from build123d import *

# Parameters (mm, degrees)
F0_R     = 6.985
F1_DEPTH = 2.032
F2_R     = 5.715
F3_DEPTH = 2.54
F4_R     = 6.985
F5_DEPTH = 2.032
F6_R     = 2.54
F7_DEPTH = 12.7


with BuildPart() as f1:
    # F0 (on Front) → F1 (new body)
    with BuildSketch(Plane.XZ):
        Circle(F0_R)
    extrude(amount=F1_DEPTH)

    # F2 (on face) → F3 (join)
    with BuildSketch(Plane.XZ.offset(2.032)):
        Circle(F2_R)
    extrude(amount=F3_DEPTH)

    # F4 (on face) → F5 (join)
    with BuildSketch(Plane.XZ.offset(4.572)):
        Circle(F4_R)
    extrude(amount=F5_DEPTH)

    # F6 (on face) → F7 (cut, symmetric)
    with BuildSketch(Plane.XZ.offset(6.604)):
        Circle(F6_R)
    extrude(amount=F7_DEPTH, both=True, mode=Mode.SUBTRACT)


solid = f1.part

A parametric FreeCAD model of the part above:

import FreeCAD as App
import Part
import Sketcher
Q = App.Units.Quantity

doc = App.newDocument("Part")
body = doc.addObject("PartDesign::Body", "Body")

sketch1 = body.newObject("Sketcher::SketchObject", "Sketch")
sketch1.AttachmentSupport = (doc.getObject("XZ_Plane"), [""])
sketch1.MapMode = "FlatFace"
sketch1.addGeometry(Part.Circle(App.Vector(0, 0, 0), App.Vector(0, 0, 1), 7), False)
sketch1.addConstraint([
    Sketcher.Constraint("Coincident", 0, 3, -1, 1),
    Sketcher.Constraint("Diameter", 0, Q("0.55 in")),
])
pad1 = body.newObject("PartDesign::Pad", "Pad")
pad1.Profile = sketch1
pad1.Length = Q("0.08 in")

sketch2 = body.newObject("Sketcher::SketchObject", "Sketch001")
sketch2.AttachmentSupport = (doc.getObject("XZ_Plane"), [""])
sketch2.MapMode = "FlatFace"
sketch2.AttachmentOffset = App.Placement(App.Vector(0, 0, 0.08 * 25.4), App.Rotation())
sketch2.addGeometry(Part.Circle(App.Vector(0, 0, 0), App.Vector(0, 0, 1), 6), False)
sketch2.addConstraint([
    Sketcher.Constraint("Coincident", 0, 3, -1, 1),
    Sketcher.Constraint("Diameter", 0, Q("0.45 in")),
])
pad2 = body.newObject("PartDesign::Pad", "Pad001")
pad2.Profile = sketch2
pad2.Length = Q("0.1 in")

sketch3 = body.newObject("Sketcher::SketchObject", "Sketch002")
sketch3.AttachmentSupport = (doc.getObject("XZ_Plane"), [""])
sketch3.MapMode = "FlatFace"
sketch3.AttachmentOffset = App.Placement(App.Vector(0, 0, 0.18 * 25.4), App.Rotation())
sketch3.addGeometry(Part.Circle(App.Vector(0, 0, 0), App.Vector(0, 0, 1), 7), False)
sketch3.addConstraint([
    Sketcher.Constraint("Coincident", 0, 3, -1, 1),
    Sketcher.Constraint("Diameter", 0, Q("0.55 in")),
])
pad3 = body.newObject("PartDesign::Pad", "Pad002")
pad3.Profile = sketch3
pad3.Length = Q("0.08 in")

sketch4 = body.newObject("Sketcher::SketchObject", "Sketch003")
sketch4.AttachmentSupport = (doc.getObject("XZ_Plane"), [""])
sketch4.MapMode = "FlatFace"
sketch4.AttachmentOffset = App.Placement(App.Vector(0, 0, 0.26 * 25.4), App.Rotation())
sketch4.addGeometry(Part.Circle(App.Vector(0, 0, 0), App.Vector(0, 0, 1), 2.5), False)
sketch4.addConstraint([
    Sketcher.Constraint("Coincident", 0, 3, -1, 1),
    Sketcher.Constraint("Diameter", 0, Q("0.2 in")),
])
pocket1 = body.newObject("PartDesign::Pocket", "Pocket")
pocket1.Profile = sketch4
pocket1.Length = Q("1 in")
pocket1.Midplane = True

doc.recompute()
